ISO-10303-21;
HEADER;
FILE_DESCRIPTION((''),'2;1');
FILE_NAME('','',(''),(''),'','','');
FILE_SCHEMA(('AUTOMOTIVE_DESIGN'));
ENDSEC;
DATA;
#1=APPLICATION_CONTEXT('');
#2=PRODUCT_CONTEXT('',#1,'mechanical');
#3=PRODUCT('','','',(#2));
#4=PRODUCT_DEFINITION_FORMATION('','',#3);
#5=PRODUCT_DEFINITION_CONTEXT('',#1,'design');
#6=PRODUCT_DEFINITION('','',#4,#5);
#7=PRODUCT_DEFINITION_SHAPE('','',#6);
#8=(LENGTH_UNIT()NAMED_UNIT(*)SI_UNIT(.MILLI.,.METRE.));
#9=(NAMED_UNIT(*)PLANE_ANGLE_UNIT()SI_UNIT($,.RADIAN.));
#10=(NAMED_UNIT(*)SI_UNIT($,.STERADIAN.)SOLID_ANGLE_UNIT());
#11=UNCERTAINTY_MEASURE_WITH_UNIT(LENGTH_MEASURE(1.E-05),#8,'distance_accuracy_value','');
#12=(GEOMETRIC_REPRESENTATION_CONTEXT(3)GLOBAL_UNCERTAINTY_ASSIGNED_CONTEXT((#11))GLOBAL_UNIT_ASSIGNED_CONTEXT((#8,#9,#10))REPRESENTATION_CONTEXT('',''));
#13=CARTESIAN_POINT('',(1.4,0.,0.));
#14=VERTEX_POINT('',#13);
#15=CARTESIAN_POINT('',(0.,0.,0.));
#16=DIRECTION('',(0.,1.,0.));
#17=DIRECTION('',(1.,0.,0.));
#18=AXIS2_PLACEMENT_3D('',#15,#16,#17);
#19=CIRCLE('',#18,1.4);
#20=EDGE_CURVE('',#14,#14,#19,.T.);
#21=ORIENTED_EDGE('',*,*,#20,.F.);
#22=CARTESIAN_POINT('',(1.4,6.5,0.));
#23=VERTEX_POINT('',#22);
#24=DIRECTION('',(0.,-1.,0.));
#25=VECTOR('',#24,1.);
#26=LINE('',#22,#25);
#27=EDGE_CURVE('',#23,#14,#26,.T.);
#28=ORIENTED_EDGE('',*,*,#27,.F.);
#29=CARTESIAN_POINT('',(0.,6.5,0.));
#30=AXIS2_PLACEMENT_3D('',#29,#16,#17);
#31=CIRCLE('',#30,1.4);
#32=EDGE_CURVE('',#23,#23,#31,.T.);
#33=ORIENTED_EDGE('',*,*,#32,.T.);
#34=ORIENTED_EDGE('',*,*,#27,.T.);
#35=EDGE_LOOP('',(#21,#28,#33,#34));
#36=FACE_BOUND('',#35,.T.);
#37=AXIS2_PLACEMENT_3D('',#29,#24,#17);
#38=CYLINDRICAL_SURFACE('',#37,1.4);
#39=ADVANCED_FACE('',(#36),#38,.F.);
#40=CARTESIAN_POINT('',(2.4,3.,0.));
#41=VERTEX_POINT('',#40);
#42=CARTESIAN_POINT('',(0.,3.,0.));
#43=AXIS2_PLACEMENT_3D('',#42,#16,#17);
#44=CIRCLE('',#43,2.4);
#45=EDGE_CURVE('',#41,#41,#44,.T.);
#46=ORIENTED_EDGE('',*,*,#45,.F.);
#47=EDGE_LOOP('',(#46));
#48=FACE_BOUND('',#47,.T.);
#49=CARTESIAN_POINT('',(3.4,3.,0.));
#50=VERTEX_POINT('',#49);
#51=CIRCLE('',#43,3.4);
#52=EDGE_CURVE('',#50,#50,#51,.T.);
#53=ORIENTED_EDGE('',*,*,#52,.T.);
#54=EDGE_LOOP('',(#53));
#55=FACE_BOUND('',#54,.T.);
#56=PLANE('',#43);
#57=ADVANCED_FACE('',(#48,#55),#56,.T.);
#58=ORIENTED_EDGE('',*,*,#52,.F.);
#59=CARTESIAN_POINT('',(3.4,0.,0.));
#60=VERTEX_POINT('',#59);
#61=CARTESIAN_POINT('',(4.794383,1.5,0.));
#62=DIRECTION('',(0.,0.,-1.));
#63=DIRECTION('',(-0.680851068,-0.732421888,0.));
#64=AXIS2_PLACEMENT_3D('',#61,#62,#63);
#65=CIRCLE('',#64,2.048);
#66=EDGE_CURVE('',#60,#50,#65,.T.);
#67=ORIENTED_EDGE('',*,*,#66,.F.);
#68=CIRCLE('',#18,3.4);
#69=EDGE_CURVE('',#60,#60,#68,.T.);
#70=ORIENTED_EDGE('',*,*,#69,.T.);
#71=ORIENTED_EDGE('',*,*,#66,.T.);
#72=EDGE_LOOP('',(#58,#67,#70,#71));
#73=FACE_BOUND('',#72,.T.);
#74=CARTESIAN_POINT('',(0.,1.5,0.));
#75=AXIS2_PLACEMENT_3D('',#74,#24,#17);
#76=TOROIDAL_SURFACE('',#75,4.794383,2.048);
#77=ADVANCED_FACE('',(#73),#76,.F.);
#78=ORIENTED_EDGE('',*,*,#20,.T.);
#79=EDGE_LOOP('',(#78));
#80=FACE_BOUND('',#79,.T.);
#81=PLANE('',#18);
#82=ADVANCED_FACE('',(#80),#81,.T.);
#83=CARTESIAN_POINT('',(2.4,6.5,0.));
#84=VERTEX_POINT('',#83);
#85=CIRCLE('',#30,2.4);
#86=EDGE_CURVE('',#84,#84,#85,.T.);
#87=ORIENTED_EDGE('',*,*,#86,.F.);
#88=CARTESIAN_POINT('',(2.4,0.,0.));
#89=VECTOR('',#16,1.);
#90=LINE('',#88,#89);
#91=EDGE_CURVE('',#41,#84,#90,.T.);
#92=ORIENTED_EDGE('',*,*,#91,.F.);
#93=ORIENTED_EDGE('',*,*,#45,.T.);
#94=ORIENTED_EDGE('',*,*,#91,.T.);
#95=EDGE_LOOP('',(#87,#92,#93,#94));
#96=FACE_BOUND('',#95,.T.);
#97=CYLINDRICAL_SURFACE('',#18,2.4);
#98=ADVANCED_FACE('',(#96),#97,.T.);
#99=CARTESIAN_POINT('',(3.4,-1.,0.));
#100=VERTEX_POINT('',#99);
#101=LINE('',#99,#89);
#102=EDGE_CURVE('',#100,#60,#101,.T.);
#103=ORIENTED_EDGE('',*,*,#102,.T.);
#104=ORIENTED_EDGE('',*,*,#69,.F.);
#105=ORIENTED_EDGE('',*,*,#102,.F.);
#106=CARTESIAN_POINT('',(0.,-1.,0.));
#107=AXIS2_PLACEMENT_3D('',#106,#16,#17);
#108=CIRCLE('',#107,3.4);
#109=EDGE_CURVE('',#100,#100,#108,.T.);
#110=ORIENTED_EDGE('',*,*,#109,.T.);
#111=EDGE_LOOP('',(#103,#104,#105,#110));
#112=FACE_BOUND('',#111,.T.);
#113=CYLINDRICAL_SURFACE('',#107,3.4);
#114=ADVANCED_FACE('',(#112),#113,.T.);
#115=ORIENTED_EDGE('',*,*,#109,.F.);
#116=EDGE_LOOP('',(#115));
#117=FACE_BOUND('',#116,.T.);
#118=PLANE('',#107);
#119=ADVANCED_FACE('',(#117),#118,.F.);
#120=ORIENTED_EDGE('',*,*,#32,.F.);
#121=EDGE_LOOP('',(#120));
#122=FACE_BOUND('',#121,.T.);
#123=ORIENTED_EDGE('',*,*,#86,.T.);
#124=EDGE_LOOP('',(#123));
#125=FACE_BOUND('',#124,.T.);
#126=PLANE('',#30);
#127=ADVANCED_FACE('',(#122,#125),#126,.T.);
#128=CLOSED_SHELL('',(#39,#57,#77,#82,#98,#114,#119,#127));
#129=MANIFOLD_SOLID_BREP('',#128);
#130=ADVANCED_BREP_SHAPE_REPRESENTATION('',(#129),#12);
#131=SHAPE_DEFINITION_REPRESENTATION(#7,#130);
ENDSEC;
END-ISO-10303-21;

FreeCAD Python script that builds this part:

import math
import FreeCAD as App
import Part
import Sketcher

V = App.Vector

doc = App.newDocument("Part")
body = doc.addObject("PartDesign::Body", "Body")

sketch1 = doc.addObject("Sketcher::SketchObject", "Sketch")
body.addObject(sketch1)
sketch1.AttachmentSupport = (doc.XY_Plane, [""])
sketch1.MapMode = "FlatFace"
sketch1.addGeometry([
    Part.LineSegment(V(1.4, 6.5, 0), V(1.4, 0, 0)),
    Part.LineSegment(V(1.4, 0, 0), V(0, 0, 0)),
    Part.LineSegment(V(0, 0, 0), V(0, -1, 0)),
    Part.LineSegment(V(0, -1, 0), V(3.4, -1, 0)),
    Part.LineSegment(V(3.4, -1, 0), V(3.4, 0, 0)),
    Part.ArcOfCircle(Part.Circle(V(4.8, 1.5, 0), V(0, 0, 1), 2), math.radians(133), math.radians(227)),
    Part.LineSegment(V(3.4, 3, 0), V(2.4, 3, 0)),
    Part.LineSegment(V(2.4, 3, 0), V(2.4, 6.5, 0)),
    Part.LineSegment(V(2.4, 6.5, 0), V(1.4, 6.5, 0)),
], False)
sketch1.addConstraint([
    Sketcher.Constraint("Coincident", 0, 2, 1, 1),
    Sketcher.Constraint("Coincident", 1, 2, 2, 1),
    Sketcher.Constraint("Coincident", 2, 2, 3, 1),
    Sketcher.Constraint("Coincident", 3, 2, 4, 1),
    Sketcher.Constraint("Coincident", 4, 2, 5, 2),
    Sketcher.Constraint("Coincident", 5, 1, 6, 1),
    Sketcher.Constraint("Coincident", 6, 2, 7, 1),
    Sketcher.Constraint("Coincident", 7, 2, 8, 1),
    Sketcher.Constraint("Coincident", 8, 2, 0, 1),
    Sketcher.Constraint("Vertical", 0),
    Sketcher.Constraint("Horizontal", 1),
    Sketcher.Constraint("Vertical", 2),
    Sketcher.Constraint("Horizontal", 3),
    Sketcher.Constraint("Vertical", 4),
    Sketcher.Constraint("Horizontal", 6),
    Sketcher.Constraint("Vertical", 7),
    Sketcher.Constraint("Horizontal", 8),
    Sketcher.Constraint("Coincident", 1, 2, -1, 1),
    Sketcher.Constraint("PointOnObject", 4, 2, -1),
    Sketcher.Constraint("Vertical", 4, 2, 5, 1),
    Sketcher.Constraint("Equal", 6, 8),
    Sketcher.Constraint("Equal", 8, 2),
    Sketcher.Constraint("DistanceX", 6, 2, 6, 1, 1.0),
    Sketcher.Constraint("DistanceX", 1, 2, 1, 1, 1.4),
    Sketcher.Constraint("DistanceY", 0, 2, 0, 1, 6.5),
    Sketcher.Constraint("DistanceY", 7, 1, 7, 2, 3.5),
    Sketcher.Constraint("Radius", 5, 2.048),
])
revolution = doc.addObject("PartDesign::Revolution", "Revolution")
body.addObject(revolution)
revolution.Profile = sketch1
revolution.ReferenceAxis = (sketch1, ["V_Axis"])
revolution.Angle = 360

doc.recompute()
